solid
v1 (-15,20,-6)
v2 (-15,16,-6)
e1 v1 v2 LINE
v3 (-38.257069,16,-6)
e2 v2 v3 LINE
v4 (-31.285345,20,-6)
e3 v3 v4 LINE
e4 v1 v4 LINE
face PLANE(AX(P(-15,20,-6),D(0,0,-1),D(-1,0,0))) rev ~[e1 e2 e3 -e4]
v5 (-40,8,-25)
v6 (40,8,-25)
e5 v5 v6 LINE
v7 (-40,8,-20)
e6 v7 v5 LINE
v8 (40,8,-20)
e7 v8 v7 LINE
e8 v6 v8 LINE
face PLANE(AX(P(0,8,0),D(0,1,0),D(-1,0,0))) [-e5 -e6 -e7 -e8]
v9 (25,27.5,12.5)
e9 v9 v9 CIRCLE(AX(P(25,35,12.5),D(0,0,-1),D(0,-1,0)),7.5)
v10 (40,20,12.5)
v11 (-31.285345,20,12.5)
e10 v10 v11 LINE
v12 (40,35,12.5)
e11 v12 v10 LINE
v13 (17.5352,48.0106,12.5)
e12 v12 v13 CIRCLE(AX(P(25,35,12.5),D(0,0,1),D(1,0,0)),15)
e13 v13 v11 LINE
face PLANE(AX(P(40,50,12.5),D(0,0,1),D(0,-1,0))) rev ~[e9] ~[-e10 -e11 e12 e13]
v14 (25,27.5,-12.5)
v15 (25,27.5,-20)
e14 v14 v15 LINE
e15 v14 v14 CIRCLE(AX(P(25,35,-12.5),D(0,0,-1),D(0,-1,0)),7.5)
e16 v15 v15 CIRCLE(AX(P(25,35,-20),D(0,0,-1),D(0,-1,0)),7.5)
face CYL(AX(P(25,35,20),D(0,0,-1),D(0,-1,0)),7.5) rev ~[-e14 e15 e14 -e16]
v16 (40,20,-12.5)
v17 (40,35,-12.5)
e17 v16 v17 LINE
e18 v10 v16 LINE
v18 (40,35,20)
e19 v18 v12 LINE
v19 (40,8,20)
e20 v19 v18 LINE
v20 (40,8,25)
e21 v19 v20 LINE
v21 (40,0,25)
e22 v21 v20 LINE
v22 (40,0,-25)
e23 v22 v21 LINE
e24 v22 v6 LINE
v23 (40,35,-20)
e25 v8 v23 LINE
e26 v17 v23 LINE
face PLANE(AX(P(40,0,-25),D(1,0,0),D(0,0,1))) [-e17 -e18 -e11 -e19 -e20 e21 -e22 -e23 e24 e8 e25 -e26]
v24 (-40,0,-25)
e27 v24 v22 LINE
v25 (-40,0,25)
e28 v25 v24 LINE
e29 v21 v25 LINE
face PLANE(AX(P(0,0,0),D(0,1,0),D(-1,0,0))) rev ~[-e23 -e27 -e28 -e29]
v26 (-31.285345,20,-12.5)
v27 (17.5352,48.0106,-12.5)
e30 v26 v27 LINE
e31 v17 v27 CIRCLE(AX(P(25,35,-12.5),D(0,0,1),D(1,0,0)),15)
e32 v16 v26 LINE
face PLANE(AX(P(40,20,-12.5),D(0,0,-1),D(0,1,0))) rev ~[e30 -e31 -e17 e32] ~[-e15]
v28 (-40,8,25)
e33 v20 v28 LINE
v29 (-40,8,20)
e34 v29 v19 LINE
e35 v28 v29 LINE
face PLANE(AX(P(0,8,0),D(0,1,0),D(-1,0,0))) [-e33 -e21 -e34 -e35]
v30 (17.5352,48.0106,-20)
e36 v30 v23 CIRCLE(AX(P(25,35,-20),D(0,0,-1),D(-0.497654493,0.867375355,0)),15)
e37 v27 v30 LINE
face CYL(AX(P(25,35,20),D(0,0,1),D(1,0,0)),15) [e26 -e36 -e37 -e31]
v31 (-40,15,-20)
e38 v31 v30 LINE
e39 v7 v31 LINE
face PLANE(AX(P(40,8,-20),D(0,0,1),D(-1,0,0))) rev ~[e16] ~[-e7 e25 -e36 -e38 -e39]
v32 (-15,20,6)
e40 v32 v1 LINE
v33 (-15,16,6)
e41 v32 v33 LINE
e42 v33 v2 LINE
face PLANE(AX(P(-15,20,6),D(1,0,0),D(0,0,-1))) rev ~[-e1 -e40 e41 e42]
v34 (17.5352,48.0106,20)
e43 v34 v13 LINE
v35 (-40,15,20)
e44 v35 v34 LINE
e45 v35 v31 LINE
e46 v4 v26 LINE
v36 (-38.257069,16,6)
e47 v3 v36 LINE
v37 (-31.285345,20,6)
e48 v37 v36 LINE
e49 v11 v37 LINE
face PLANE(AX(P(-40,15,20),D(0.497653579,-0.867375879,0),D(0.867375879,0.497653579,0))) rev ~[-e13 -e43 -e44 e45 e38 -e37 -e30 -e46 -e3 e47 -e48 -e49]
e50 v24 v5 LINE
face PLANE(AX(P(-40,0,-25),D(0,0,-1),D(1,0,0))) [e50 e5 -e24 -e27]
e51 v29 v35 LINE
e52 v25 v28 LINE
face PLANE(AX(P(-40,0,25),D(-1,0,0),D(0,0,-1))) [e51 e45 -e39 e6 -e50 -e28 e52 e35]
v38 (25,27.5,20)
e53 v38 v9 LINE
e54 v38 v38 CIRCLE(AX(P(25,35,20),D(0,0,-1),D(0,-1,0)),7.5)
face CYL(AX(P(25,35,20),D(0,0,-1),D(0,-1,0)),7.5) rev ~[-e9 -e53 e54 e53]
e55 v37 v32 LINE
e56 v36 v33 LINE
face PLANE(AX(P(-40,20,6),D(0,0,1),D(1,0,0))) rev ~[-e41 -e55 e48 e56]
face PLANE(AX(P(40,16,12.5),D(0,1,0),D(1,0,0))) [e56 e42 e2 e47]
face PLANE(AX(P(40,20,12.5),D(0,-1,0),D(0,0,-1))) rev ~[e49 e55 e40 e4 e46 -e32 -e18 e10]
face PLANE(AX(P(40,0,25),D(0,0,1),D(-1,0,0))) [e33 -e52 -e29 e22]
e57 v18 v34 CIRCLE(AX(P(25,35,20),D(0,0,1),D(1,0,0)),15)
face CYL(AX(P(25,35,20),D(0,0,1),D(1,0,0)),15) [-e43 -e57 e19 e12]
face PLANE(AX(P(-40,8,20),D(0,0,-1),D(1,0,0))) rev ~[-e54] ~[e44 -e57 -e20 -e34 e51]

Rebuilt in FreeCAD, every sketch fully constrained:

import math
import FreeCAD as App
import Part
import Sketcher

V = App.Vector
Q = App.Units.Quantity


def add_polygon(sketch, points):
    """Adds a closed chain of lines whose ends are joined by coincident constraints."""
    first, n = sketch.GeometryCount, len(points)
    for a, b in zip(points, points[1:] + points[:1]):
        sketch.addGeometry(Part.LineSegment(App.Vector(*a, 0), App.Vector(*b, 0)), False)
    for i in range(n):
        sketch.addConstraint(Sketcher.Constraint("Coincident", first + i, 2, first + (i + 1) % n, 1))

doc = App.newDocument("Part")
body = doc.addObject("PartDesign::Body", "Body")

# Sketch on XZ plane
sketch1 = doc.addObject("Sketcher::SketchObject", "Sketch")
body.addObject(sketch1)
sketch1.AttachmentSupport = (doc.XZ_Plane, [""])
sketch1.MapMode = "FlatFace"
add_polygon(sketch1, [(40, -25), (-40, -25), (-40, 25), (40, 25)])  # lines 0-3
sketch1.addConstraint(Sketcher.Constraint("Horizontal", 0))
sketch1.addConstraint(Sketcher.Constraint("Vertical", 1))
sketch1.addConstraint(Sketcher.Constraint("Horizontal", 2))
sketch1.addConstraint(Sketcher.Constraint("Vertical", 3))
sketch1.addConstraint(Sketcher.Constraint("Symmetric", 0, 2, 2, 2, -1, 1))
sketch1.addConstraint(Sketcher.Constraint("DistanceX", 0, 2, 0, 1, Q("80 mm")))
sketch1.addConstraint(Sketcher.Constraint("DistanceY", 1, 1, 1, 2, Q("50 mm")))
pad1 = doc.addObject("PartDesign::Pad", "Pad")
body.addObject(pad1)
pad1.Profile = sketch1
pad1.Length = 8
pad1.Reversed = True

# Sketch on XZ plane
sketch2 = doc.addObject("Sketcher::SketchObject", "Sketch001")
body.addObject(sketch2)
sketch2.AttachmentSupport = (doc.XZ_Plane, [""])
sketch2.MapMode = "FlatFace"
sketch2.AttachmentOffset = App.Placement(V(0, 0, -8), App.Rotation())
add_polygon(sketch2, [(-40, 20), (40, 20), (40, -20), (-40, -20)])  # lines 0-3
sketch2.addConstraint(Sketcher.Constraint("Horizontal", 0))
sketch2.addConstraint(Sketcher.Constraint("Vertical", 1))
sketch2.addConstraint(Sketcher.Constraint("Horizontal", 2))
sketch2.addConstraint(Sketcher.Constraint("Vertical", 3))
sketch2.addConstraint(Sketcher.Constraint("Symmetric", 0, 2, 2, 2, -1, 1))
sketch2.addConstraint(Sketcher.Constraint("DistanceY", 1, 2, 1, 1, Q("40 mm")))
sketch2.addConstraint(Sketcher.Constraint("DistanceX", -1, 1, 0, 2, Q("40 mm")))
pad2 = doc.addObject("PartDesign::Pad", "Pad001")
body.addObject(pad2)
pad2.Profile = sketch2
pad2.Length = 42
pad2.Reversed = True

# Sketch on XY plane
sketch3 = doc.addObject("Sketcher::SketchObject", "Sketch002")
body.addObject(sketch3)
sketch3.AttachmentSupport = (doc.XY_Plane, [""])
sketch3.MapMode = "FlatFace"
sketch3.AttachmentOffset = App.Placement(V(0, 0, 20), App.Rotation())
sketch3.addGeometry(Part.LineSegment(V(-40, 50, 0), V(-40, 15, 0)), False)
sketch3.addGeometry(Part.LineSegment(V(-40, 15, 0), V(18, 48, 0)), False)
sketch3.addGeometry(Part.ArcOfCircle(Part.Circle(V(25, 35, 0), V(0, 0, 1), 15), math.radians(90), math.radians(120)), False)
sketch3.addGeometry(Part.LineSegment(V(25, 50, 0), V(-40, 50, 0)), False)
sketch3.addGeometry(Part.LineSegment(V(40, 50, 0), V(25, 50, 0)), False)
sketch3.addGeometry(Part.ArcOfCircle(Part.Circle(V(25, 35, 0), V(0, 0, 1), 15), math.radians(0), math.radians(90)), False)
sketch3.addGeometry(Part.LineSegment(V(40, 35, 0), V(40, 50, 0)), False)
sketch3.addConstraint(Sketcher.Constraint("Coincident", 0, 2, 1, 1))
sketch3.addConstraint(Sketcher.Constraint("Tangent", 1, 2, 2, 2))
sketch3.addConstraint(Sketcher.Constraint("Tangent", 2, 1, 3, 1))
sketch3.addConstraint(Sketcher.Constraint("Coincident", 3, 2, 0, 1))
sketch3.addConstraint(Sketcher.Constraint("Tangent", 4, 2, 5, 2))
sketch3.addConstraint(Sketcher.Constraint("Tangent", 5, 1, 6, 1))
sketch3.addConstraint(Sketcher.Constraint("Coincident", 6, 2, 4, 1))
sketch3.addConstraint(Sketcher.Constraint("Vertical", 0))
sketch3.addConstraint(Sketcher.Constraint("Horizontal", 3))
sketch3.addConstraint(Sketcher.Constraint("Horizontal", 4))
sketch3.addConstraint(Sketcher.Constraint("Vertical", 6))
sketch3.addConstraint(Sketcher.Constraint("Coincident", 5, 3, 2, 3))
sketch3.addConstraint(Sketcher.Constraint("Equal", 2, 5))
sketch3.addConstraint(Sketcher.Constraint("Radius", 2, Q("15 mm")))
sketch3.addConstraint(Sketcher.Constraint("DistanceX", 3, 2, 3, 1, Q("65 mm")))
sketch3.addConstraint(Sketcher.Constraint("DistanceY", 0, 2, 0, 1, Q("35 mm")))
sketch3.addConstraint(Sketcher.Constraint("DistanceX", -1, 1, 2, 3, Q("25 mm")))
sketch3.addConstraint(Sketcher.Constraint("DistanceY", -1, 1, 2, 3, Q("35 mm")))
pocket1 = doc.addObject("PartDesign::Pocket", "Pocket")
body.addObject(pocket1)
pocket1.Profile = sketch3
pocket1.Type = "ThroughAll"

# Sketch on YZ plane
sketch4 = doc.addObject("Sketcher::SketchObject", "Sketch003")
body.addObject(sketch4)
sketch4.AttachmentSupport = (doc.YZ_Plane, [""])
sketch4.MapMode = "FlatFace"
sketch4.AttachmentOffset = App.Placement(V(0, 0, 40), App.Rotation())
add_polygon(sketch4, [(50, 12), (20, 12), (20, -12), (50, -12)])  # lines 0-3
sketch4.addConstraint(Sketcher.Constraint("Horizontal", 0))
sketch4.addConstraint(Sketcher.Constraint("Vertical", 1))
sketch4.addConstraint(Sketcher.Constraint("Horizontal", 2))
sketch4.addConstraint(Sketcher.Constraint("Vertical", 3))
sketch4.addConstraint(Sketcher.Constraint("DistanceX", 0, 2, 0, 1, Q("30 mm")))
sketch4.addConstraint(Sketcher.Constraint("DistanceY", 1, 2, 1, 1, Q("25 mm")))
sketch4.addConstraint(Sketcher.Constraint("DistanceX", -1, 1, 0, 2, Q("20 mm")))
sketch4.addConstraint(Sketcher.Constraint("DistanceY", -1, 1, 0, 2, Q("12.5 mm")))
pocket2 = doc.addObject("PartDesign::Pocket", "Pocket001")
body.addObject(pocket2)
pocket2.Profile = sketch4
pocket2.Type = "ThroughAll"

# Sketch on XZ plane
sketch5 = doc.addObject("Sketcher::SketchObject", "Sketch004")
body.addObject(sketch5)
sketch5.AttachmentSupport = (doc.XZ_Plane, [""])
sketch5.MapMode = "FlatFace"
sketch5.AttachmentOffset = App.Placement(V(0, 0, -20), App.Rotation())
add_polygon(sketch5, [(-15, 6), (-15, -6), (-40, -6), (-40, 6)])  # lines 0-3
sketch5.addConstraint(Sketcher.Constraint("Vertical", 0))
sketch5.addConstraint(Sketcher.Constraint("Horizontal", 1))
sketch5.addConstraint(Sketcher.Constraint("Vertical", 2))
sketch5.addConstraint(Sketcher.Constraint("Horizontal", 3))
sketch5.addConstraint(Sketcher.Constraint("DistanceX", 1, 2, 1, 1, Q("25 mm")))
sketch5.addConstraint(Sketcher.Constraint("DistanceY", 0, 2, 0, 1, Q("12 mm")))
sketch5.addConstraint(Sketcher.Constraint("DistanceX", 0, 2, -1, 1, Q("15 mm")))
sketch5.addConstraint(Sketcher.Constraint("DistanceY", 0, 2, -1, 1, Q("6 mm")))
pocket3 = doc.addObject("PartDesign::Pocket", "Pocket002")
body.addObject(pocket3)
pocket3.Profile = sketch5
pocket3.Length = 4
pocket3.Reversed = True

# Sketch on XY plane
sketch6 = doc.addObject("Sketcher::SketchObject", "Sketch005")
body.addObject(sketch6)
sketch6.AttachmentSupport = (doc.XY_Plane, [""])
sketch6.MapMode = "FlatFace"
sketch6.AttachmentOffset = App.Placement(V(0, 0, 20), App.Rotation())
sketch6.addGeometry(Part.Circle(V(25, 35, 0), V(0, 0, 1), 8), False)
sketch6.addConstraint(Sketcher.Constraint("Diameter", 0, Q("15 mm")))
sketch6.addConstraint(Sketcher.Constraint("DistanceX", -1, 1, 0, 3, Q("25 mm")))
sketch6.addConstraint(Sketcher.Constraint("DistanceY", -1, 1, 0, 3, Q("35 mm")))
doc.recompute()
hole = doc.addObject("PartDesign::Hole", "Hole")
body.addObject(hole)
hole.Profile = sketch6
hole.ThreadType = "None"
hole.Diameter = 15
hole.DepthType = "ThroughAll"

doc.recompute()
